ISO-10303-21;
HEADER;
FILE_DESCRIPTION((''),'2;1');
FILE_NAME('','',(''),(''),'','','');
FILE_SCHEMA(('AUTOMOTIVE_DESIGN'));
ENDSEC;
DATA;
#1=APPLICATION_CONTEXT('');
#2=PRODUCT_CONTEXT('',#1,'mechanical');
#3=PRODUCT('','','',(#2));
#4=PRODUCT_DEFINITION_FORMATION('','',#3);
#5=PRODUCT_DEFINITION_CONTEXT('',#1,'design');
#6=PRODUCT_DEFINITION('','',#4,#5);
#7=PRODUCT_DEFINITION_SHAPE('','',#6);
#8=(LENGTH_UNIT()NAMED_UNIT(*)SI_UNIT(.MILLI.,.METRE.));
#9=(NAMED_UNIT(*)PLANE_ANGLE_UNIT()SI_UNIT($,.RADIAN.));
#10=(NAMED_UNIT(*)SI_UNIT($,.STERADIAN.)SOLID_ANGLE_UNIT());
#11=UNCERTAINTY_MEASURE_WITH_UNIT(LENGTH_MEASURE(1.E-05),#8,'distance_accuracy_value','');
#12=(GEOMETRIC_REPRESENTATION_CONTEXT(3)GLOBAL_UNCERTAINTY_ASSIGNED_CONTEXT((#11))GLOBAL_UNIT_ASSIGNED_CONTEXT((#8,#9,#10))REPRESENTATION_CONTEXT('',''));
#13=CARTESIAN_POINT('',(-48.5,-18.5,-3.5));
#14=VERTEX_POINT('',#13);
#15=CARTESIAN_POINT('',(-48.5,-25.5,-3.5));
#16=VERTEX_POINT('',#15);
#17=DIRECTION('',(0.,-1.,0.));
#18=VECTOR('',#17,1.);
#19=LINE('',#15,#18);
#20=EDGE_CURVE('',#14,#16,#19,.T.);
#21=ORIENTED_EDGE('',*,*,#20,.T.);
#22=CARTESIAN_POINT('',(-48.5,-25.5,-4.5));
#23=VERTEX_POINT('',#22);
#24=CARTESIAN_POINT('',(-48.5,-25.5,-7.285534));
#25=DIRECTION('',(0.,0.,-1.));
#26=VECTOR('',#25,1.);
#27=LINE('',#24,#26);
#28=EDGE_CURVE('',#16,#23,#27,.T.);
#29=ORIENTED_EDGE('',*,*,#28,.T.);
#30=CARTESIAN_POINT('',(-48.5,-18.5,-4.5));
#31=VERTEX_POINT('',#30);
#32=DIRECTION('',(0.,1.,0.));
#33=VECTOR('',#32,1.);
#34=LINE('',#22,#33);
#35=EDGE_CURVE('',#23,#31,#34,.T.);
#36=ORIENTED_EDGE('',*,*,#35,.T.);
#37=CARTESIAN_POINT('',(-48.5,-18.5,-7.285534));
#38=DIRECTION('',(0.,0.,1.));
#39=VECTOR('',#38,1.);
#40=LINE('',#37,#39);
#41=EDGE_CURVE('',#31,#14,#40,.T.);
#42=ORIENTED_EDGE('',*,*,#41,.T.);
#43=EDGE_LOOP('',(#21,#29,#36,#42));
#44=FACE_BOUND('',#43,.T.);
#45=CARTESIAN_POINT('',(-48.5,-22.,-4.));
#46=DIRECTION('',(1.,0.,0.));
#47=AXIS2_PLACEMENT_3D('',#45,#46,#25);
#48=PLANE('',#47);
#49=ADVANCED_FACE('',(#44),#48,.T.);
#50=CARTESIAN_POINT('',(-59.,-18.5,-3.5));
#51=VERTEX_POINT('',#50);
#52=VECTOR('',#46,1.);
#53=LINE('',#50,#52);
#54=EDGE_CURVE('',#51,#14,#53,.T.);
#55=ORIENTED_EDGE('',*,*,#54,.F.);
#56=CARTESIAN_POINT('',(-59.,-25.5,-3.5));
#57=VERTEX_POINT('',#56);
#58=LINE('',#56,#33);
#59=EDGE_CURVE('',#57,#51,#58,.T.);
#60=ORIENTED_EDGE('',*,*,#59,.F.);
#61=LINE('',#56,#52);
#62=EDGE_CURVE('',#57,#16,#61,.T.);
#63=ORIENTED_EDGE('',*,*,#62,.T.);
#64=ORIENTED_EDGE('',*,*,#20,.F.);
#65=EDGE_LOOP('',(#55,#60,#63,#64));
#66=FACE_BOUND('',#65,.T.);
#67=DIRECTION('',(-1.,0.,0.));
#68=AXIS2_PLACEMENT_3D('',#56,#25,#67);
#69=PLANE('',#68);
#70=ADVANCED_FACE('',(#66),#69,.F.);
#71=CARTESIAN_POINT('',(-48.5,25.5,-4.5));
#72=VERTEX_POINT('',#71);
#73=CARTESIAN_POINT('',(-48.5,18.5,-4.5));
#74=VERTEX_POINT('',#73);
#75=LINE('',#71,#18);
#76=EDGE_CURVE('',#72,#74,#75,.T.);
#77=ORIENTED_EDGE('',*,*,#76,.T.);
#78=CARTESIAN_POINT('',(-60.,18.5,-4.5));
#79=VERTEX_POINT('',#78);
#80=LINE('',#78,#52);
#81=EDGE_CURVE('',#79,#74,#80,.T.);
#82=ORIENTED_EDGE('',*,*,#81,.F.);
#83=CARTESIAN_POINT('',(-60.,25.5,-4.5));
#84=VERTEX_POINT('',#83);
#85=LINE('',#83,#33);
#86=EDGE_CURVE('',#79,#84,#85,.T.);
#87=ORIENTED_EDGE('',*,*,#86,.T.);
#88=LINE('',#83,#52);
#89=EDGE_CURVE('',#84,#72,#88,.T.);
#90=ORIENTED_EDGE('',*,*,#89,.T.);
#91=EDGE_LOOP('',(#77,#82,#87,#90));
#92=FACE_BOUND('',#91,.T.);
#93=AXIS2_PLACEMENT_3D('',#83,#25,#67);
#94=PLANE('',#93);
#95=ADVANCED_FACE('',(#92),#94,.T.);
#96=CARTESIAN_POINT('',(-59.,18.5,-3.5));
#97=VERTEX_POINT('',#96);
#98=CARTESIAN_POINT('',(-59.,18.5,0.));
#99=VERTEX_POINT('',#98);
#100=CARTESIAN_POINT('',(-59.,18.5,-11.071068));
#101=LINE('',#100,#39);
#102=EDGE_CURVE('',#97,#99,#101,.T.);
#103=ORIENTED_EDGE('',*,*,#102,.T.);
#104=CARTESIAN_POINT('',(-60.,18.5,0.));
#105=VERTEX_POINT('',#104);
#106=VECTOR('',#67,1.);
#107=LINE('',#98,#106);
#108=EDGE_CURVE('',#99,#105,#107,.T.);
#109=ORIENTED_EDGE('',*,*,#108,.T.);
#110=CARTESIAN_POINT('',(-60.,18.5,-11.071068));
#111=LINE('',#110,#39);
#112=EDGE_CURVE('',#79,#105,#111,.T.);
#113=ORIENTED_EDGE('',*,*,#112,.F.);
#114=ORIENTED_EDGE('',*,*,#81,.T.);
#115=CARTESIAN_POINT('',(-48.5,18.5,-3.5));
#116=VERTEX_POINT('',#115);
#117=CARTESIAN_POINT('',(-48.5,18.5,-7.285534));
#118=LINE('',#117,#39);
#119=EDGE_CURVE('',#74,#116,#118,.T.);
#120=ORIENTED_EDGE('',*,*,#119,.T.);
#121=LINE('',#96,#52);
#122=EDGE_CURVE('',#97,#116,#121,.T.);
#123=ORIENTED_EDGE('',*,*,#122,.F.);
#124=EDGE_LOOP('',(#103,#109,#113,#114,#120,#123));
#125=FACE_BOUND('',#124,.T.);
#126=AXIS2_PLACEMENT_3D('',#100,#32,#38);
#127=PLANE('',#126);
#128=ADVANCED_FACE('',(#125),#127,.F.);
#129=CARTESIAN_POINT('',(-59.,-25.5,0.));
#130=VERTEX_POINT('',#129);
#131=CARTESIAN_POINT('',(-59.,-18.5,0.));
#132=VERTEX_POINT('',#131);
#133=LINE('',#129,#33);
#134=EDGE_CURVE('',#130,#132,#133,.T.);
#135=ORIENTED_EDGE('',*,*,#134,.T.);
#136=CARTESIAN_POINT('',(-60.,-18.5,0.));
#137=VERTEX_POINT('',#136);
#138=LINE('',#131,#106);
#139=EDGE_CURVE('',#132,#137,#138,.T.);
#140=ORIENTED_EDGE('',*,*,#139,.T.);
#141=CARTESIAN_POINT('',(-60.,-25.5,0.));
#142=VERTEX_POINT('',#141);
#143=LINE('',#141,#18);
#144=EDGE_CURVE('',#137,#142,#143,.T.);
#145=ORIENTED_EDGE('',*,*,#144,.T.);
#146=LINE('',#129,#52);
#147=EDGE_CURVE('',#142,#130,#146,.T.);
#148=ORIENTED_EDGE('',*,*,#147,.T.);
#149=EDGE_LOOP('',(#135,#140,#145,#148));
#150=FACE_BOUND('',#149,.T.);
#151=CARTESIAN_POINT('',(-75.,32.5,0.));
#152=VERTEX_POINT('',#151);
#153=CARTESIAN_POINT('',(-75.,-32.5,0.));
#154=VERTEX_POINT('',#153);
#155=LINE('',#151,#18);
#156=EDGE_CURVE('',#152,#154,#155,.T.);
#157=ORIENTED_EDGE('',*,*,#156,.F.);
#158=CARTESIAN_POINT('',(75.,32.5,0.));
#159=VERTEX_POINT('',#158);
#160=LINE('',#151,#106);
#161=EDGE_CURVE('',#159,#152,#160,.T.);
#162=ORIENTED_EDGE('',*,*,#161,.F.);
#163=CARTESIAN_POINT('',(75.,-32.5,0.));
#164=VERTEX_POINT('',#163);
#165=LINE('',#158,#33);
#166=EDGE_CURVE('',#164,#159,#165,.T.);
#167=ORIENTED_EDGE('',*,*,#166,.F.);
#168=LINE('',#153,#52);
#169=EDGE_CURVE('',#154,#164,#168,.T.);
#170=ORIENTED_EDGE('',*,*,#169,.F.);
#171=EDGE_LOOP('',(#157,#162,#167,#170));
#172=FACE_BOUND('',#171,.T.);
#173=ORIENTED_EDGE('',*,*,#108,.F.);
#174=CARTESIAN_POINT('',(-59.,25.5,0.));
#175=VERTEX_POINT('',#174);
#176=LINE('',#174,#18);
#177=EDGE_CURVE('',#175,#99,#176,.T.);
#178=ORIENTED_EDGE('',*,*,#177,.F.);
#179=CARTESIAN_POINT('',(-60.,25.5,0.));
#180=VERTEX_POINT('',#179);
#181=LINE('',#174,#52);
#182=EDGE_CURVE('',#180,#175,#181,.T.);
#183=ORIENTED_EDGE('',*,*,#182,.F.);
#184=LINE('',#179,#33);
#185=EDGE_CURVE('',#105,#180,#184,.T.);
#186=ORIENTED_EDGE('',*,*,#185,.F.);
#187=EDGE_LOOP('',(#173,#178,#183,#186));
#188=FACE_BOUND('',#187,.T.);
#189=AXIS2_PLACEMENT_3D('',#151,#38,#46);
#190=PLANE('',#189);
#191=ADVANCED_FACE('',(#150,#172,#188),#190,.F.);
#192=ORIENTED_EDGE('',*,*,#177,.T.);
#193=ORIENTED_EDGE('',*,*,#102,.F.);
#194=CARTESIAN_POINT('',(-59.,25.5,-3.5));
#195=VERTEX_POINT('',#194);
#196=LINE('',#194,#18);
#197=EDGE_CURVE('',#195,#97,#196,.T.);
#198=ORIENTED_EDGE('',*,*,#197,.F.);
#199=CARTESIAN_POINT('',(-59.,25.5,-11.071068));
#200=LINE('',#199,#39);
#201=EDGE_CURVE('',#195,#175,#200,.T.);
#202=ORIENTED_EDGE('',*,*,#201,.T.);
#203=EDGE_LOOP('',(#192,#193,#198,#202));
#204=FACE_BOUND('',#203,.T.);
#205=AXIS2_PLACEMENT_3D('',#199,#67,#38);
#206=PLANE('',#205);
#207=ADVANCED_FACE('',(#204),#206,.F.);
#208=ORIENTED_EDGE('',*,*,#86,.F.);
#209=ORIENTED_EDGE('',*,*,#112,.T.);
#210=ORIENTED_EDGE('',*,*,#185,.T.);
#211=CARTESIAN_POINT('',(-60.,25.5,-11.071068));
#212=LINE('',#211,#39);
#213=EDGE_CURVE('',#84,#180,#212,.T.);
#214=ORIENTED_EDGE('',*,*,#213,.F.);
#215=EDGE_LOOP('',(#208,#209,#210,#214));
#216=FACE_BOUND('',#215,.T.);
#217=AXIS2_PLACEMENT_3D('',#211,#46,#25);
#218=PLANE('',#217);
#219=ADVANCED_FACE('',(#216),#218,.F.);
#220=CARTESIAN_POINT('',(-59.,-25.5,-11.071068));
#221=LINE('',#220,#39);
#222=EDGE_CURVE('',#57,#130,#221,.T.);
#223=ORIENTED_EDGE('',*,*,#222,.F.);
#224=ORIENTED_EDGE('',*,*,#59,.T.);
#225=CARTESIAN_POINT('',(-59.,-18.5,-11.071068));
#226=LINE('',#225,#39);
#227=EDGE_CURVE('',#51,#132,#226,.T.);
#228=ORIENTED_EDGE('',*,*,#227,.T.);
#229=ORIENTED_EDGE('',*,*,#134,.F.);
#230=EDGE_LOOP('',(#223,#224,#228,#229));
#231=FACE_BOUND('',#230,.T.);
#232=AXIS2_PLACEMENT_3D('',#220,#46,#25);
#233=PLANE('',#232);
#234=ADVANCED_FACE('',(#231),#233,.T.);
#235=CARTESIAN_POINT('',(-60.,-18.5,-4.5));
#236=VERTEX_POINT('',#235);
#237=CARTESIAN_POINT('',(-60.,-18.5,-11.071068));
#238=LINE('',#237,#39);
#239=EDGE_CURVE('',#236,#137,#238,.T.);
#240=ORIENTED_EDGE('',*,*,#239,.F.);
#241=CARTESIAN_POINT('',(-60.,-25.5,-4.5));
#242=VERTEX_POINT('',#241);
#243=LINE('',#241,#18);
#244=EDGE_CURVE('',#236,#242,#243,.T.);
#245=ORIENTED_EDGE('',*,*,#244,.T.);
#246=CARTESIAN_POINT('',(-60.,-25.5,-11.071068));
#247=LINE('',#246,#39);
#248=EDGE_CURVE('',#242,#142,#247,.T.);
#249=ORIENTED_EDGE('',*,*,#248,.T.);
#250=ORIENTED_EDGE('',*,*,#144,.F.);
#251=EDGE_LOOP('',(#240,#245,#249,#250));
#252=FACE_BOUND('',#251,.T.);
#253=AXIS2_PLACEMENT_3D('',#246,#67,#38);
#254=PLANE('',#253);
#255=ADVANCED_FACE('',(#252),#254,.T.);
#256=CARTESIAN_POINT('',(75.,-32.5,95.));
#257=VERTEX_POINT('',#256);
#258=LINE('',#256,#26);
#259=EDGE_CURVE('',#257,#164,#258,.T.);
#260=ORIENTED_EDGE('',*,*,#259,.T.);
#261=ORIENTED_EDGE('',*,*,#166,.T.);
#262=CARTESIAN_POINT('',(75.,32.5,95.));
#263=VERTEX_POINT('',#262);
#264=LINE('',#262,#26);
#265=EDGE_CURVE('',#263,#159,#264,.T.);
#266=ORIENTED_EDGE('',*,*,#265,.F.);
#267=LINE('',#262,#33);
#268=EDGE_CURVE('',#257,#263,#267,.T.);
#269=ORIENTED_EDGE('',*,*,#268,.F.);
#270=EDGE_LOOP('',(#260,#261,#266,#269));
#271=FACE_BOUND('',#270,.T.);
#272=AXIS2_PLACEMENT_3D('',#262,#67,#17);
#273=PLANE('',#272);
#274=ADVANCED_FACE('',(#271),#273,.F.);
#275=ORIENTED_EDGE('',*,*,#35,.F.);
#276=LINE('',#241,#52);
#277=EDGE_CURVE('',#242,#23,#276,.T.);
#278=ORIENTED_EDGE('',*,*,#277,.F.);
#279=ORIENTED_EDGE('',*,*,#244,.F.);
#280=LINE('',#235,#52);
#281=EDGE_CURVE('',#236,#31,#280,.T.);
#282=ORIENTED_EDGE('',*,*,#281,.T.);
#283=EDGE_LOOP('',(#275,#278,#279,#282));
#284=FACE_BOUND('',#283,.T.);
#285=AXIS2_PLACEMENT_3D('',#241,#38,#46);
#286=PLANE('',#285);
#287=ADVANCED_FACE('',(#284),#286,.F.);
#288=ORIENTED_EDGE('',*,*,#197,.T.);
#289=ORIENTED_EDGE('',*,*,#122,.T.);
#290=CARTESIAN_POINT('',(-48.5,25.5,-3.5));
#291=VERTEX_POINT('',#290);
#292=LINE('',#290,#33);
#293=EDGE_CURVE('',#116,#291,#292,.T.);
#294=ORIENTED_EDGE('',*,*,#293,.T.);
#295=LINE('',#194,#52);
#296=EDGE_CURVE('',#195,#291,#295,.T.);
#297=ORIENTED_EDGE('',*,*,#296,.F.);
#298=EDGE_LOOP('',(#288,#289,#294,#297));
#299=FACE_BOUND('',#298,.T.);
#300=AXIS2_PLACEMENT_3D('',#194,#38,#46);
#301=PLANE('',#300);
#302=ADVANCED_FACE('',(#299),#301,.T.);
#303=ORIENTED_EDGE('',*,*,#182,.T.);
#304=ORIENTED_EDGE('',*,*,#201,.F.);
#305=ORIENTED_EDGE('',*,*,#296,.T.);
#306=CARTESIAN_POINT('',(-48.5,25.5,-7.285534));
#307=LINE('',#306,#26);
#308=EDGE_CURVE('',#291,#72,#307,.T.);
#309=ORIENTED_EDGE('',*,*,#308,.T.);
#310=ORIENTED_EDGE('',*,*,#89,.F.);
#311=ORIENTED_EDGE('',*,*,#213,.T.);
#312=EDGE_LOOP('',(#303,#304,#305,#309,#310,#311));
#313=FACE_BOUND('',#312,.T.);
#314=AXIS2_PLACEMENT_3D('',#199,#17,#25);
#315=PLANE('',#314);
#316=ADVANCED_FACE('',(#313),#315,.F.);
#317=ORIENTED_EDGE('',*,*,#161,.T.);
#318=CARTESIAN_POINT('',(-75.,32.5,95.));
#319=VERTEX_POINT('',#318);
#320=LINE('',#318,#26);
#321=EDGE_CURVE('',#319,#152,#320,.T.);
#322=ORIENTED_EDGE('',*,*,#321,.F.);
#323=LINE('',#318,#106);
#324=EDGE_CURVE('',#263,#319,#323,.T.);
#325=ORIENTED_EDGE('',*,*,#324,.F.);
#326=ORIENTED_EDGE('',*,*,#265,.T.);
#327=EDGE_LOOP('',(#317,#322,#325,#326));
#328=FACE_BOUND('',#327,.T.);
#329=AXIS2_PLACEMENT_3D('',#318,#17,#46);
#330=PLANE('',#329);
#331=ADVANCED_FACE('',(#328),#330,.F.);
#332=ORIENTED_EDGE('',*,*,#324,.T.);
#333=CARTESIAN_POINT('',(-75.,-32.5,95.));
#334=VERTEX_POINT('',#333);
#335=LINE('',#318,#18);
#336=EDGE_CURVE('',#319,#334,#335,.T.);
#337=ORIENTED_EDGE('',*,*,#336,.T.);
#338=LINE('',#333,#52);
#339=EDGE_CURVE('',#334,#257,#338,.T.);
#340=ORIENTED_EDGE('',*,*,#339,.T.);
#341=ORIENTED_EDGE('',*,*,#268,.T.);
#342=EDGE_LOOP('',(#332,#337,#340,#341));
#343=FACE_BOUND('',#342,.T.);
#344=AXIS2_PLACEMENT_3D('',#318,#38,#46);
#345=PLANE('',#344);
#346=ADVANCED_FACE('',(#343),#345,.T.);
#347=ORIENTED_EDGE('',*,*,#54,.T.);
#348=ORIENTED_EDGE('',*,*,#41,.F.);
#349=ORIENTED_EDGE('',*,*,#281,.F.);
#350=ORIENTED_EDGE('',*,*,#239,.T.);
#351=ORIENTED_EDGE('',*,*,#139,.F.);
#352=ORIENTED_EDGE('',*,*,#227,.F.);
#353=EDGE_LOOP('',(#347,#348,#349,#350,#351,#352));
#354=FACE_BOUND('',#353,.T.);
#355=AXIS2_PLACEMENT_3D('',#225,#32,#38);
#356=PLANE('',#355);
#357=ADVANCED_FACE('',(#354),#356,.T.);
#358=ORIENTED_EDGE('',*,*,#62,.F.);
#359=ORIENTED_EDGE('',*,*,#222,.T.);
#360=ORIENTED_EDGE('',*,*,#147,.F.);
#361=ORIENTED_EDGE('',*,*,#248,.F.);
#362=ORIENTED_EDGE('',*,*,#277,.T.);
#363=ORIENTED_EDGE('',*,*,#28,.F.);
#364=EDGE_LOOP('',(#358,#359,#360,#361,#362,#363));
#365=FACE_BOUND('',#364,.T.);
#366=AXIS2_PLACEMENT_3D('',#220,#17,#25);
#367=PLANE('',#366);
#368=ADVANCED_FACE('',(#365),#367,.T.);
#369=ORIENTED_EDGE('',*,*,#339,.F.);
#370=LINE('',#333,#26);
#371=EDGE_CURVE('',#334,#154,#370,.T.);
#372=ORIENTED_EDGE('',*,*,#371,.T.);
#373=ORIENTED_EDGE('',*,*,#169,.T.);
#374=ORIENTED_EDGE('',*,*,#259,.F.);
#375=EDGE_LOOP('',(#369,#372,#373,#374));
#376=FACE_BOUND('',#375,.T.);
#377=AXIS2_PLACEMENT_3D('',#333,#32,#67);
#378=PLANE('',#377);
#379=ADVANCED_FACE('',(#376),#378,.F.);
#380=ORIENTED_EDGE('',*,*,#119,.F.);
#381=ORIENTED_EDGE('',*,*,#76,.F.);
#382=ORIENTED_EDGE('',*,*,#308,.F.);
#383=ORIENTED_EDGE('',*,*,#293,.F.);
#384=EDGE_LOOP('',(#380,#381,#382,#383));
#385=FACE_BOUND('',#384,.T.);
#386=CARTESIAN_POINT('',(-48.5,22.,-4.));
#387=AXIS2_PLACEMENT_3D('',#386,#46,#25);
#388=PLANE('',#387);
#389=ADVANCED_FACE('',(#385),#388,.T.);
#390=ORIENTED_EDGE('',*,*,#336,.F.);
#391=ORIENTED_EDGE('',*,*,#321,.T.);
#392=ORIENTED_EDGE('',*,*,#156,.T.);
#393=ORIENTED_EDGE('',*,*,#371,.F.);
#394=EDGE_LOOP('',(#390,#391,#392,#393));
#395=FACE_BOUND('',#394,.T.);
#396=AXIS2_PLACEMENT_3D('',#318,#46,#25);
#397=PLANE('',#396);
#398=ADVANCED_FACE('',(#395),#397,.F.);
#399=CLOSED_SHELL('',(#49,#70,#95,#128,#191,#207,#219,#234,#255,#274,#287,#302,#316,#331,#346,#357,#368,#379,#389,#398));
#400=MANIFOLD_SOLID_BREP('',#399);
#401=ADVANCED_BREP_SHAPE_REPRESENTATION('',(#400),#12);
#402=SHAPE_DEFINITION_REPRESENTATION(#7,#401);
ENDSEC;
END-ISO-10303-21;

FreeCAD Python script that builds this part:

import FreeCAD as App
import Part
import Sketcher
from FreeCAD import Vector
Q = App.Units.Quantity

doc = App.newDocument("Part")
body = doc.addObject("PartDesign::Body", "Body")

# Sketch on XY plane
sketch1 = body.newObject("Sketcher::SketchObject", "Sketch")
sketch1.AttachmentSupport = (doc.getObject("XY_Plane"), [""])
sketch1.MapMode = "FlatFace"
sketch1.addGeometry([
    Part.LineSegment(Vector(-75, 32, 0), Vector(-75, -32, 0)),
    Part.LineSegment(Vector(-75, -32, 0), Vector(75, -32, 0)),
    Part.LineSegment(Vector(75, -32, 0), Vector(75, 32, 0)),
    Part.LineSegment(Vector(75, 32, 0), Vector(-75, 32, 0)),
], False)
sketch1.addConstraint([
    Sketcher.Constraint("Coincident", 0, 2, 1, 1),
    Sketcher.Constraint("Coincident", 1, 2, 2, 1),
    Sketcher.Constraint("Coincident", 2, 2, 3, 1),
    Sketcher.Constraint("Coincident", 3, 2, 0, 1),
    Sketcher.Constraint("Vertical", 0),
    Sketcher.Constraint("Horizontal", 1),
    Sketcher.Constraint("Vertical", 2),
    Sketcher.Constraint("Horizontal", 3),
    Sketcher.Constraint("Symmetric", 0, 2, 2, 2, -1, 1),
    Sketcher.Constraint("DistanceX", 1, 1, 1, 2, Q("150 mm")),
    Sketcher.Constraint("DistanceY", 0, 2, 0, 1, Q("65 mm")),
])
pad1 = body.newObject("PartDesign::Pad", "Pad")
pad1.Profile = sketch1
pad1.Length = 95

# Sketch on XY plane
sketch2 = body.newObject("Sketcher::SketchObject", "Sketch001")
sketch2.AttachmentSupport = (doc.getObject("XY_Plane"), [""])
sketch2.MapMode = "FlatFace"
sketch2.addGeometry([
    Part.LineSegment(Vector(-59, 25.5, 0), Vector(-59, 18.5, 0)),
    Part.LineSegment(Vector(-59, 18.5, 0), Vector(-60, 18.5, 0)),
    Part.LineSegment(Vector(-60, 18.5, 0), Vector(-60, 25.5, 0)),
    Part.LineSegment(Vector(-60, 25.5, 0), Vector(-59, 25.5, 0)),
], False)
sketch2.addConstraint([
    Sketcher.Constraint("Coincident", 0, 2, 1, 1),
    Sketcher.Constraint("Coincident", 1, 2, 2, 1),
    Sketcher.Constraint("Coincident", 2, 2, 3, 1),
    Sketcher.Constraint("Coincident", 3, 2, 0, 1),
    Sketcher.Constraint("Vertical", 0),
    Sketcher.Constraint("Horizontal", 1),
    Sketcher.Constraint("Vertical", 2),
    Sketcher.Constraint("Horizontal", 3),
    Sketcher.Constraint("DistanceX", 1, 2, 1, 1, Q("1 mm")),
    Sketcher.Constraint("DistanceY", 0, 2, 0, 1, Q("7 mm")),
    Sketcher.Constraint("DistanceX", 0, 2, -1, 1, Q("59 mm")),
    Sketcher.Constraint("DistanceY", -1, 1, 0, 2, Q("18.5 mm")),
])

# Sketch on XZ plane
sketch3 = body.newObject("Sketcher::SketchObject", "Sketch002")
sketch3.AttachmentSupport = (doc.getObject("XZ_Plane"), [""])
sketch3.MapMode = "FlatFace"
sketch3.AttachmentOffset = App.Placement(Vector(0, 0, -19), App.Rotation())
sketch3.addGeometry([
    Part.LineSegment(Vector(-59.5, 0, 0), Vector(-59.5, -4, 0)),
    Part.LineSegment(Vector(-59.5, -4, 0), Vector(-48.5, -4, 0)),
], False)
sketch3.addConstraint([
    Sketcher.Constraint("Coincident", 0, 2, 1, 1),
    Sketcher.Constraint("Vertical", 0),
    Sketcher.Constraint("Horizontal", 1),
    Sketcher.Constraint("PointOnObject", 0, 1, -1),
    Sketcher.Constraint("DistanceX", 1, 1, 1, 2, Q("11 mm")),
    Sketcher.Constraint("DistanceY", 0, 2, 0, 1, Q("4 mm")),
    Sketcher.Constraint("DistanceX", 0, 1, -1, 1, Q("59.5 mm")),
])
doc.recompute()

additivepipe = body.newObject("PartDesign::AdditivePipe", "AdditivePipe")
additivepipe.Profile = sketch2
additivepipe.Spine = (sketch3, ["Edge1", "Edge2"])
additivepipe.Transition = "Right corner"
doc.recompute()

mirrored = body.newObject("PartDesign::Mirrored", "Mirrored")
mirrored.Originals = [additivepipe]
mirrored.MirrorPlane = (doc.getObject("XZ_Plane"), [""])
body.Tip = mirrored

doc.recompute()
